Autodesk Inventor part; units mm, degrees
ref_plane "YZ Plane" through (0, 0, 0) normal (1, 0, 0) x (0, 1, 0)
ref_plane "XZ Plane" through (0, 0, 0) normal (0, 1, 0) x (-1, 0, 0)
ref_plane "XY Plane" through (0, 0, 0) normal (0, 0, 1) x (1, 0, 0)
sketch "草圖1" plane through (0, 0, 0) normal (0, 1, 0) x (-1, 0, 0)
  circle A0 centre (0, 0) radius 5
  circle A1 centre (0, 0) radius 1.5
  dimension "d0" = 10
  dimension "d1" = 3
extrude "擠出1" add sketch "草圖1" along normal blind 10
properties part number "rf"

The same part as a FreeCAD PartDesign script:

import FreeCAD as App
import Part
import Sketcher
from FreeCAD import Vector

doc = App.newDocument("Part")
params = doc.addObject("Spreadsheet::Sheet", "Params")
for row, (alias, value) in enumerate([
    ("sketch1_diameter", "10 mm"),
    ("sketch1_diameter2", "3 mm"),
    ("pad1_length", "10 mm"),
], start=1):
    params.set(f"A{row}", alias)
    params.set(f"B{row}", "=" + value)
    params.setAlias(f"B{row}", alias)

body = doc.addObject("PartDesign::Body", "Body")

# Sketch on XZ plane
sketch1 = doc.addObject("Sketcher::SketchObject", "Sketch")
body.addObject(sketch1)
sketch1.AttachmentSupport = (doc.XZ_Plane, [""])
sketch1.MapMode = "FlatFace"
sketch1.addGeometry([
    Part.Circle(Vector(0, 0, 0), Vector(0, 0, 1), 5),
    Part.Circle(Vector(0, 0, 0), Vector(0, 0, 1), 1.5),
], False)
sketch1.addConstraint([
    Sketcher.Constraint("Coincident", 0, 3, -1, 1),
    Sketcher.Constraint("Coincident", 1, 3, -1, 1),
    Sketcher.Constraint("Diameter", 0, 10.0),
    Sketcher.Constraint("Diameter", 1, 3.0),
])
sketch1.setExpression("Constraints[2]", "Params.sketch1_diameter")
sketch1.setExpression("Constraints[3]", "Params.sketch1_diameter2")
pad1 = doc.addObject("PartDesign::Pad", "Pad")
body.addObject(pad1)
pad1.Profile = sketch1
pad1.setExpression("Length", "Params.pad1_length")
pad1.Reversed = True

doc.recompute()
